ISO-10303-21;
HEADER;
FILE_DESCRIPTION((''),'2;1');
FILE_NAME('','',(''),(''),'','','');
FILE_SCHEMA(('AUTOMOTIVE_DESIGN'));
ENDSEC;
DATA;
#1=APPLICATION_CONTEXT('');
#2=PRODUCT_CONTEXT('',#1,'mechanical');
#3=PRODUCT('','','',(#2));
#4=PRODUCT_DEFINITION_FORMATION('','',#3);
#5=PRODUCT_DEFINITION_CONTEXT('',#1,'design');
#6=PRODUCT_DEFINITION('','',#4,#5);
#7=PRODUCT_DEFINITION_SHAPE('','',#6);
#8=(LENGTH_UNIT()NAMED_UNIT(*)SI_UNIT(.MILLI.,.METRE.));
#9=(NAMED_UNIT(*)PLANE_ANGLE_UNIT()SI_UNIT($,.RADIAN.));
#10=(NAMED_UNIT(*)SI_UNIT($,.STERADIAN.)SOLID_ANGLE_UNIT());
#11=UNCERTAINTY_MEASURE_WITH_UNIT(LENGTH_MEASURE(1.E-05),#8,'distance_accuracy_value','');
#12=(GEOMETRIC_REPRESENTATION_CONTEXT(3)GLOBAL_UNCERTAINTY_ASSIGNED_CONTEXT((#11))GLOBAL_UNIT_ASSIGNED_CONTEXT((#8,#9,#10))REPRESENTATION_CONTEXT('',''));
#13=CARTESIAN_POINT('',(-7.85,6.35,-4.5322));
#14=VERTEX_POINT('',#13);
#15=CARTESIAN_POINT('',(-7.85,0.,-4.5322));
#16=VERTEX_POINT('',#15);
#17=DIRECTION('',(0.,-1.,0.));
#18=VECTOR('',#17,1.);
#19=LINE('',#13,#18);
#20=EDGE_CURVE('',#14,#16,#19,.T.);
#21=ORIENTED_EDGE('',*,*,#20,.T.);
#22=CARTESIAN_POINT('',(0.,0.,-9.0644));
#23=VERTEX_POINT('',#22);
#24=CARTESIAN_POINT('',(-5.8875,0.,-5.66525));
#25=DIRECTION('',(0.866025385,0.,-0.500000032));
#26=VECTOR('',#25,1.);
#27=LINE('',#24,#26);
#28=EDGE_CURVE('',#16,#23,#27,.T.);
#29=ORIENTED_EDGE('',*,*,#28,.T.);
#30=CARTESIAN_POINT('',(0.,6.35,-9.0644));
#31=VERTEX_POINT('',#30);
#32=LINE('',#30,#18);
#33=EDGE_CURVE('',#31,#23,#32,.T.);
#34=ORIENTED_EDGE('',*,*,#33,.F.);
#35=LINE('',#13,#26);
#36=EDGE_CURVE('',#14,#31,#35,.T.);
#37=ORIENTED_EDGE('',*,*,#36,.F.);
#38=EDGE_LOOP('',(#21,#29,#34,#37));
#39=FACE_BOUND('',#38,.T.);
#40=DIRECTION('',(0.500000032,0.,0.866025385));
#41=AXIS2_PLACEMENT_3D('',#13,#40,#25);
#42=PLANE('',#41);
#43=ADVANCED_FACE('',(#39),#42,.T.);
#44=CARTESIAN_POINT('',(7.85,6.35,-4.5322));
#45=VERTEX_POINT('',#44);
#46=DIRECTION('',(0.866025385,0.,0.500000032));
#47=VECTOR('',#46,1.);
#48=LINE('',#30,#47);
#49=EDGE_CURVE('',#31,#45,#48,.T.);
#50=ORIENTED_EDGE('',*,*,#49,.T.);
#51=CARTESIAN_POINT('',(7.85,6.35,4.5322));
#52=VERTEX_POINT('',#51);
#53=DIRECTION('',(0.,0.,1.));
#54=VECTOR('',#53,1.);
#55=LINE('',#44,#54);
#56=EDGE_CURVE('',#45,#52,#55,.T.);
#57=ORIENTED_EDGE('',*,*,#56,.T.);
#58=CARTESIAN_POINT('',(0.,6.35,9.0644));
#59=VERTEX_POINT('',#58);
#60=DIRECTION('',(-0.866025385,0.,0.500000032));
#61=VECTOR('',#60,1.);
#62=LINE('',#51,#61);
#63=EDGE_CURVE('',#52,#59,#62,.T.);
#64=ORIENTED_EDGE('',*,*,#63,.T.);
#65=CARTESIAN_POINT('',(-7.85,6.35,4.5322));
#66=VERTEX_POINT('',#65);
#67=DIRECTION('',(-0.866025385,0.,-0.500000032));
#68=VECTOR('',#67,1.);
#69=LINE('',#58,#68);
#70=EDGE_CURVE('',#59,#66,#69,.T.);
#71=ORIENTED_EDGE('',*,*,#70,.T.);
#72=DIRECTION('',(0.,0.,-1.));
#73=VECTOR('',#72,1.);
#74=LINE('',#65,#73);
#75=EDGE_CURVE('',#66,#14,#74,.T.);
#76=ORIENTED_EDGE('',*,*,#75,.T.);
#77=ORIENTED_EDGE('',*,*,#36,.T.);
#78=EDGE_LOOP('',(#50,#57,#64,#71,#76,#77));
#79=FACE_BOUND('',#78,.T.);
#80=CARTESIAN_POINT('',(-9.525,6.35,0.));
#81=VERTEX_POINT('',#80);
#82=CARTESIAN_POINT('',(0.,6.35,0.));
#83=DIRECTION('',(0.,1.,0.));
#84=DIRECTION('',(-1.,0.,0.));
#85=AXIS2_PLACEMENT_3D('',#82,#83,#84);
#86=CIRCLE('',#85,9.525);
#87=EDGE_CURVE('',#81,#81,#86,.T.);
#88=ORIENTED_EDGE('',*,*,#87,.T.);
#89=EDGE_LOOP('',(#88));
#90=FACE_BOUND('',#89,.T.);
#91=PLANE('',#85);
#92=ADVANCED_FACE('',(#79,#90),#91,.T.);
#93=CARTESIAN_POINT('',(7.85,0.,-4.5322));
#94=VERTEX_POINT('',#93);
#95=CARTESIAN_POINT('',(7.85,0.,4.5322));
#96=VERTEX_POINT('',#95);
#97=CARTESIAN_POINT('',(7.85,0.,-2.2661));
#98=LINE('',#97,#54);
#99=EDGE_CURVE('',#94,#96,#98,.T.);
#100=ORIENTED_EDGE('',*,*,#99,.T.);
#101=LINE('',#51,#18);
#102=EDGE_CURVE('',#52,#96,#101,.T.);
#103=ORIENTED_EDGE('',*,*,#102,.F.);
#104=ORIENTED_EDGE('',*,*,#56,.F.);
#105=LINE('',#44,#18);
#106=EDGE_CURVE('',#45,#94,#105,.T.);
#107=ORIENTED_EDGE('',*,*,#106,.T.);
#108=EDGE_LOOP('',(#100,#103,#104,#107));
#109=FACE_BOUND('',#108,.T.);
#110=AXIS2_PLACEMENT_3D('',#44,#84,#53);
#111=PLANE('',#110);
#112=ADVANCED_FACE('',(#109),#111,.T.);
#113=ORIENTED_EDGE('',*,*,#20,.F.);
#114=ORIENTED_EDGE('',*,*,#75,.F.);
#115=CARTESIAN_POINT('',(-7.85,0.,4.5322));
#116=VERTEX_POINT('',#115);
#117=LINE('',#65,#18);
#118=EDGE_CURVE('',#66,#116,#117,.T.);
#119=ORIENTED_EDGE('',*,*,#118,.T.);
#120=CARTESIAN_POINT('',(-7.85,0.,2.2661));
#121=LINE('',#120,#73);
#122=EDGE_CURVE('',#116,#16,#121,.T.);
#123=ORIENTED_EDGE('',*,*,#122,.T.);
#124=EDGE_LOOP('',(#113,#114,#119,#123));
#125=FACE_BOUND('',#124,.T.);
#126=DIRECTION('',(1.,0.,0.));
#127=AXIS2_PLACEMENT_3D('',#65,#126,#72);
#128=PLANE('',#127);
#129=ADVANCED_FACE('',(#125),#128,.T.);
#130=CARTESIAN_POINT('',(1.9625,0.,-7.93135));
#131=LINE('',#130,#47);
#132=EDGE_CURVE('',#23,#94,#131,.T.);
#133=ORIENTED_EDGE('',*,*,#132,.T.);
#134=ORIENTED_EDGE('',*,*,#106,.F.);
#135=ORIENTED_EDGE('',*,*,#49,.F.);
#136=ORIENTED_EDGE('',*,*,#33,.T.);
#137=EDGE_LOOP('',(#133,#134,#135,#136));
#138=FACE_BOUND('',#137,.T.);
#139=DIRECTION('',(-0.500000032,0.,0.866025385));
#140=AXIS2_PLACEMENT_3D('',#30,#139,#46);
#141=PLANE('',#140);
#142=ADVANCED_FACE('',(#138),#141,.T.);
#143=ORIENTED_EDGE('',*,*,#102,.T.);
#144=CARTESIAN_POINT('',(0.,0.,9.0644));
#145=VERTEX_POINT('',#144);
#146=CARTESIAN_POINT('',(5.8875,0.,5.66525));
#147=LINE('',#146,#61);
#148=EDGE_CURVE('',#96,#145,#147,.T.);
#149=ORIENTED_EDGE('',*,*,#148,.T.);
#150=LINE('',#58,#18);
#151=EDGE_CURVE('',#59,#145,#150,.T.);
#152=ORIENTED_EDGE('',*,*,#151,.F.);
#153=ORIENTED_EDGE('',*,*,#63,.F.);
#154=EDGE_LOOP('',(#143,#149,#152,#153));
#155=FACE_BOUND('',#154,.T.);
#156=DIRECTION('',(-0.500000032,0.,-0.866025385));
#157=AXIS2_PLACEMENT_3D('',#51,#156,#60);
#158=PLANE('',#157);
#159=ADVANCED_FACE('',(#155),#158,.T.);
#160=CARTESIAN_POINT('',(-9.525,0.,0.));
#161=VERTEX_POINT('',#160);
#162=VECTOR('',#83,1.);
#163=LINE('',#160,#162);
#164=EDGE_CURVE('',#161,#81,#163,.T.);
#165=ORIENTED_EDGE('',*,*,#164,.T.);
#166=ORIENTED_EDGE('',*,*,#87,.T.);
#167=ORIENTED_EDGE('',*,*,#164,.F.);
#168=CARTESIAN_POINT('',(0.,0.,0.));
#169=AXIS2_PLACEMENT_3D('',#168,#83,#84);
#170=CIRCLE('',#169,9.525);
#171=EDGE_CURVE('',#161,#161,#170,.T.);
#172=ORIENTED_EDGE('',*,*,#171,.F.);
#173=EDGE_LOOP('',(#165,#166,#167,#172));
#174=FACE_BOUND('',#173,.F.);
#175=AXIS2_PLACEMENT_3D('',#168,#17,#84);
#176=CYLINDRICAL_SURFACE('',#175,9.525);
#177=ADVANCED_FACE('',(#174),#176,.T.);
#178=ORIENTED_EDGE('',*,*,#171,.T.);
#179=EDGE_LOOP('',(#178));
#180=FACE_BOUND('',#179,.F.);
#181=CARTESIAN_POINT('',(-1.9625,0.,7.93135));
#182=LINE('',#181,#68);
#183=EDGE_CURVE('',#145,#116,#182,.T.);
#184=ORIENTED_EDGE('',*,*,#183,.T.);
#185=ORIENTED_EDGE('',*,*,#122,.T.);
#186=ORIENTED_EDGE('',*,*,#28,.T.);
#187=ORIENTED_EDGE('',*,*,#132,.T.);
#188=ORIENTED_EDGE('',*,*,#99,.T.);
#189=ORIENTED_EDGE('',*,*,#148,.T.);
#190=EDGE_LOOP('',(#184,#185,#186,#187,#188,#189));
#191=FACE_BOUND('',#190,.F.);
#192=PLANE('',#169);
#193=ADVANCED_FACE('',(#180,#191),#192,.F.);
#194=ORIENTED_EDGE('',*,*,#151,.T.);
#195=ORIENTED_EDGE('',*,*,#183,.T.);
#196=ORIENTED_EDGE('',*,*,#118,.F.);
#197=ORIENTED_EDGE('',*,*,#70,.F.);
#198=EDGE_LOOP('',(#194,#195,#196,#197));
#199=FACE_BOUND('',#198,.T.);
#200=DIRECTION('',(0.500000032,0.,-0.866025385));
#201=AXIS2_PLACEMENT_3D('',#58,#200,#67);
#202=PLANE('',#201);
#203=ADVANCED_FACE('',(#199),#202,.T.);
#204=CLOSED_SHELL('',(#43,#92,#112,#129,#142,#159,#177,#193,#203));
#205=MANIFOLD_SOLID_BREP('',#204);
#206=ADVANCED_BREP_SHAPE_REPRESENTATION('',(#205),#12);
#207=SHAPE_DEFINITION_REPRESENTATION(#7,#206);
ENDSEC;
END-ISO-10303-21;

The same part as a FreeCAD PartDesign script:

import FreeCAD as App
import Part
import Sketcher
Q = App.Units.Quantity


def add_polygon(sketch, points):
    """Adds a closed chain of lines whose ends are joined by coincident constraints."""
    first, n = sketch.GeometryCount, len(points)
    for a, b in zip(points, points[1:] + points[:1]):
        sketch.addGeometry(Part.LineSegment(App.Vector(*a, 0), App.Vector(*b, 0)), False)
    for i in range(n):
        sketch.addConstraint(Sketcher.Constraint("Coincident", first + i, 2, first + (i + 1) % n, 1))

doc = App.newDocument("Part")
params = doc.addObject("Spreadsheet::Sheet", "Params")
for row, (alias, value) in enumerate([
    ("sketch1_diameter", "0.75 in"),
    ("pad1_length", "0.25 in"),
    ("pocket1_length", "1 in"),
], start=1):
    params.set(f"A{row}", alias)
    params.set(f"B{row}", "=" + value)
    params.setAlias(f"B{row}", alias)

body = doc.addObject("PartDesign::Body", "Body")

sketch1 = doc.addObject("Sketcher::SketchObject", "Sketch")
body.addObject(sketch1)
sketch1.AttachmentSupport = (doc.XZ_Plane, [""])
sketch1.MapMode = "FlatFace"
sketch1.addGeometry(Part.Circle(App.Vector(0, 0, 0), App.Vector(0, 0, 1), 9.525), False)
add_polygon(sketch1, [(-6.35, 3.6662), (-6.35, -3.6662), (0, -7.3323), (6.35, -3.6662), (6.35, 3.6662), (0, 7.3323)])
sketch1.addConstraint(Sketcher.Constraint("Vertical", 1))
sketch1.addConstraint(Sketcher.Constraint("Vertical", 4))
sketch1.addConstraint(Sketcher.Constraint("Coincident", 0, 3, -1, 1))
sketch1.addConstraint(Sketcher.Constraint("Symmetric", 1, 2, 4, 2, -1, 1))
sketch1.addConstraint(Sketcher.Constraint("Symmetric", 2, 2, 5, 2, -1, 1))
sketch1.addConstraint(Sketcher.Constraint("PointOnObject", 2, 2, -2))
sketch1.addConstraint(Sketcher.Constraint("Parallel", 3, 6))
sketch1.addConstraint(Sketcher.Constraint("Horizontal", 1, 2, 3, 2))
sketch1.addConstraint(Sketcher.Constraint("Diameter", 0, Q("0.75 in")))
sketch1.addConstraint(Sketcher.Constraint("DistanceX", 1, 2, 3, 2, Q("0.5 in")))
sketch1.addConstraint(Sketcher.Constraint("Angle", 2, Q("-29.9995 deg")))
sketch1.addConstraint(Sketcher.Constraint("DistanceY", 2, 2, 4, 2, Q("0.433 in")))
sketch1.setExpression("Constraints[14]", "Params.sketch1_diameter")
pad1 = doc.addObject("PartDesign::Pad", "Pad")
body.addObject(pad1)
pad1.Profile = sketch1
pad1.setExpression("Length", "Params.pad1_length")
pad1.Reversed = True

sketch2 = doc.addObject("Sketcher::SketchObject", "Sketch001")
body.addObject(sketch2)
sketch2.AttachmentSupport = (doc.XZ_Plane, [""])
sketch2.MapMode = "FlatFace"
sketch2.AttachmentOffset = App.Placement(App.Vector(0, 0, -0.25 * 25.4), App.Rotation())
add_polygon(sketch2, [(0, -9.0644), (-7.85, -4.5322), (-7.85, 4.5322), (0, 9.0644), (7.85, 4.5322), (7.85, -4.5322)])
sketch2.addConstraint(Sketcher.Constraint("Vertical", 1))
sketch2.addConstraint(Sketcher.Constraint("Vertical", 4))
sketch2.addConstraint(Sketcher.Constraint("Symmetric", 0, 2, 3, 2, -1, 1))
sketch2.addConstraint(Sketcher.Constraint("Symmetric", 2, 2, 5, 2, -1, 1))
sketch2.addConstraint(Sketcher.Constraint("PointOnObject", 2, 2, -2))
sketch2.addConstraint(Sketcher.Constraint("Parallel", 2, 5))
sketch2.addConstraint(Sketcher.Constraint("Horizontal", 1, 2, 3, 2))
sketch2.addConstraint(Sketcher.Constraint("Angle", 0, Q("150 deg")))
sketch2.addConstraint(Sketcher.Constraint("DistanceY", 1, 1, 1, 2, Q("9.0644 mm")))
sketch2.addConstraint(Sketcher.Constraint("DistanceY", 0, 2, 2, 2, Q("0.5353 in")))
pocket1 = doc.addObject("PartDesign::Pocket", "Pocket")
body.addObject(pocket1)
pocket1.Profile = sketch2
pocket1.setExpression("Length", "Params.pocket1_length")
pocket1.Reversed = True

doc.recompute()
